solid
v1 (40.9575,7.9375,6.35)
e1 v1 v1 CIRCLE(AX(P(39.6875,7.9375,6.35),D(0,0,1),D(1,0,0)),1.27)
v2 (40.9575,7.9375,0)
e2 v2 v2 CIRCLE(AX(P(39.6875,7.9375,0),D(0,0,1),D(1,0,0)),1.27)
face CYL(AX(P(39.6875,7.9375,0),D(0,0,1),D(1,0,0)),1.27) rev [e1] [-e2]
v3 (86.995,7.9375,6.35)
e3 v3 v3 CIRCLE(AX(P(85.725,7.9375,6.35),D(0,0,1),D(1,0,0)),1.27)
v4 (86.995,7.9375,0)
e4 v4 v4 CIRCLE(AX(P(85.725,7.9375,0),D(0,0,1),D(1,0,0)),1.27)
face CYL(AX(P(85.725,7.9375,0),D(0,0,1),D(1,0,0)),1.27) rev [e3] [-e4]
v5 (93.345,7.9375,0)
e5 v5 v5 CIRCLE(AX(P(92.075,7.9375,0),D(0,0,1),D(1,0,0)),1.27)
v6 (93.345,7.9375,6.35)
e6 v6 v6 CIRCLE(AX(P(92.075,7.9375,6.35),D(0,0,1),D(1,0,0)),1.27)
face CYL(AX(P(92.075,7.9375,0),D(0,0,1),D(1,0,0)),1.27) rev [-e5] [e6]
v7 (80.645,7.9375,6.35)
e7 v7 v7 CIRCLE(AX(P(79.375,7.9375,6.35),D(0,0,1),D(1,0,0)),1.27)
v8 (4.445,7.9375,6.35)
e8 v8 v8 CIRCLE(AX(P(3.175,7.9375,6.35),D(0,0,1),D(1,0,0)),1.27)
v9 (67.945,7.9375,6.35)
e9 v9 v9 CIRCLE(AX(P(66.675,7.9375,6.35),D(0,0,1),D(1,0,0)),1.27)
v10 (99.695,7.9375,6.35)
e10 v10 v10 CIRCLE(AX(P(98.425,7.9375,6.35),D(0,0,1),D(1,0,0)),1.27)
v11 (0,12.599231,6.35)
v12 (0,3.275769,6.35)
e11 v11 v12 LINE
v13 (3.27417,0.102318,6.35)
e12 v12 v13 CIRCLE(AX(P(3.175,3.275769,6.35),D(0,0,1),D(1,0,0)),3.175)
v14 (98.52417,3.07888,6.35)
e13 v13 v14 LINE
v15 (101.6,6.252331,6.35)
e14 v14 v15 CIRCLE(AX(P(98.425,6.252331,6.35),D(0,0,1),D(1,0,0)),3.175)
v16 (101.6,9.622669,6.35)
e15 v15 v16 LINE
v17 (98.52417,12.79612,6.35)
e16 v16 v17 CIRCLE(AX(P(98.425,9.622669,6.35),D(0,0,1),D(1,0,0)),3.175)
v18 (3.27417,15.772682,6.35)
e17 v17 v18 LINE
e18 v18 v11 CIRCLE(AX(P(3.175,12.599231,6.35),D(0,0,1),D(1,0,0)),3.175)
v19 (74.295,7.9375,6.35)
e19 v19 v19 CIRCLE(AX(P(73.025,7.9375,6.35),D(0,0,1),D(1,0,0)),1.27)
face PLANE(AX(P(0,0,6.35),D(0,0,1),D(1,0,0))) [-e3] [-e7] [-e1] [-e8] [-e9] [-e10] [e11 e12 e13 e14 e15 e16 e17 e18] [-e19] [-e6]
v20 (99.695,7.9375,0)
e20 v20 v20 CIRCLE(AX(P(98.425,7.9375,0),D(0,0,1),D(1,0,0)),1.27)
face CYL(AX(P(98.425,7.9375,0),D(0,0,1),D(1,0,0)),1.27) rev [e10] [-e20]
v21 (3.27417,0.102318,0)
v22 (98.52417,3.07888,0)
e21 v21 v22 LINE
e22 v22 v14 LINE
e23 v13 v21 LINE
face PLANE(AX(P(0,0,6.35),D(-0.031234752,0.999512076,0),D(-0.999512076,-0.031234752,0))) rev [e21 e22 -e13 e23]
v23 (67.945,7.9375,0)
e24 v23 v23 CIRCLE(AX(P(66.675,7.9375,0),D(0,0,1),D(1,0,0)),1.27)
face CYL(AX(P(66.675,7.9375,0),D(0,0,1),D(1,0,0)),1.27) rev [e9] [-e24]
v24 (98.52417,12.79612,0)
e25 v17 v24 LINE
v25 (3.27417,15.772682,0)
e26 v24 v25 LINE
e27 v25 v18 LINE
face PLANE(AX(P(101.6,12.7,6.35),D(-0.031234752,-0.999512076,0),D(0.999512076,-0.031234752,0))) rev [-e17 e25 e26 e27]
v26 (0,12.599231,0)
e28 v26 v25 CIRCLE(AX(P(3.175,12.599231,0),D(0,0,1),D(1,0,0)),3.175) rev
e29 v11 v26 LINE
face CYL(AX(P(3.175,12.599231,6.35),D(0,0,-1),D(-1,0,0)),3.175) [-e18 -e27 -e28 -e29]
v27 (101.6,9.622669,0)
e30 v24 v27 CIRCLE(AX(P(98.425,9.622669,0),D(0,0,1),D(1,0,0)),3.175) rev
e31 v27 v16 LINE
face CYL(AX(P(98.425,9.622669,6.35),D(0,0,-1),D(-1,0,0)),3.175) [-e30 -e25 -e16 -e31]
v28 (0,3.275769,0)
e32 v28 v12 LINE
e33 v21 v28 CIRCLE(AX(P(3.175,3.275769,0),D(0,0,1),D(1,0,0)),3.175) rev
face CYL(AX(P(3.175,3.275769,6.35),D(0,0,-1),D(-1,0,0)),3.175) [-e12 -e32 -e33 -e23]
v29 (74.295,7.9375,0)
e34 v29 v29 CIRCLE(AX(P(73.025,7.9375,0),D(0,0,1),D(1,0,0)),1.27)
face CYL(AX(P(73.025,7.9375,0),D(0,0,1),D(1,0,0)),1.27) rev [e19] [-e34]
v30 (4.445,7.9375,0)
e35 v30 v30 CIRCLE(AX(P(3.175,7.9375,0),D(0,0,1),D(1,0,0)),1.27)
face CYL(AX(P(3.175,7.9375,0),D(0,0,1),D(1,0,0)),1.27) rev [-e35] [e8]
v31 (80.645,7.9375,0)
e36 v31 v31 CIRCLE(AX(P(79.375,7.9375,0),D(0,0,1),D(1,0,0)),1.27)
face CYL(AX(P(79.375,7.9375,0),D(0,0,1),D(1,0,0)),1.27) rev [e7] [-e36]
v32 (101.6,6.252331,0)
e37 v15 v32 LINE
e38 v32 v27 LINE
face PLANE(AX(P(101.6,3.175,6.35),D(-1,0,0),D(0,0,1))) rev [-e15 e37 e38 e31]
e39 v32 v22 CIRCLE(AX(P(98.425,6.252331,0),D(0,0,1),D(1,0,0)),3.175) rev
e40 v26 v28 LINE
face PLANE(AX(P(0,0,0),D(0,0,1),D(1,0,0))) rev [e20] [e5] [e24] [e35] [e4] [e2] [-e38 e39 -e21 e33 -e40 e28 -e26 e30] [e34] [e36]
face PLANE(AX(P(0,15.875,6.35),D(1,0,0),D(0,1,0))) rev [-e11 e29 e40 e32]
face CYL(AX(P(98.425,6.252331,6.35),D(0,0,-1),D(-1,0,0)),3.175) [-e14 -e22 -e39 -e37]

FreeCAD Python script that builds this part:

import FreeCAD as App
import Part
import Sketcher
from FreeCAD import Vector
Q = App.Units.Quantity


def edges_at(feature, points):
    """Names of the edges that pass closest to the given points."""
    edges = feature.Shape.Edges
    near = lambda p: min(range(len(edges)), key=lambda i: edges[i].distToShape(Part.Vertex(*p))[0])
    return sorted({f"Edge{near(p) + 1}" for p in points})


def add_polygon(sketch, points):
    """Adds a closed chain of lines whose ends are joined by coincident constraints."""
    first, n = sketch.GeometryCount, len(points)
    for a, b in zip(points, points[1:] + points[:1]):
        sketch.addGeometry(Part.LineSegment(App.Vector(*a, 0), App.Vector(*b, 0)), False)
    for i in range(n):
        sketch.addConstraint(Sketcher.Constraint("Coincident", first + i, 2, first + (i + 1) % n, 1))

doc = App.newDocument("Part")
params = doc.addObject("Spreadsheet::Sheet", "Params")
for row, (alias, value) in enumerate([
    ("sketch1_height", "0.375 in"),
    ("pad1_length", "0.25 in"),
    ("sketch2_diameter", "0.1 in"),
    ("linearpattern_pitch", "0.25 in"),
    ("sketch3_diameter", "0.1 in"),
    ("fillet_radius", "0.125 in"),
], start=1):
    params.set(f"A{row}", alias)
    params.set(f"B{row}", "=" + value)
    params.setAlias(f"B{row}", alias)

body = doc.addObject("PartDesign::Body", "Body")

# Sketch on XY plane
sketch1 = doc.addObject("Sketcher::SketchObject", "Sketch")
body.addObject(sketch1)
sketch1.AttachmentSupport = (doc.XY_Plane, [""])
sketch1.MapMode = "FlatFace"
add_polygon(sketch1, [(0, 0), (101.6, 3.175), (101.6, 12.7), (0, 15.875)])  # lines 0-3
sketch1.addConstraint([
    Sketcher.Constraint("Vertical", 1),
    Sketcher.Constraint("Vertical", 3),
    Sketcher.Constraint("Coincident", 3, 2, -1, 1),
    Sketcher.Constraint("Equal", 0, 2),
    Sketcher.Constraint("DistanceX", -1, 1, 0, 2, Q("4 in")),
    Sketcher.Constraint("DistanceY", -1, 1, 1, 2, Q("0.5 in")),
    Sketcher.Constraint("DistanceY", 1, 1, 1, 2, Q("0.375 in")),
])
sketch1.setExpression("Constraints[10]", "Params.sketch1_height")
pad1 = doc.addObject("PartDesign::Pad", "Pad")
body.addObject(pad1)
pad1.Profile = sketch1
pad1.setExpression("Length", "Params.pad1_length")

# Sketch on XY plane
sketch2 = doc.addObject("Sketcher::SketchObject", "Sketch001")
body.addObject(sketch2)
sketch2.AttachmentSupport = (doc.XY_Plane, [""])
sketch2.MapMode = "FlatFace"
sketch2.AttachmentOffset = App.Placement(Vector(0, 0, 0.25 * 25.4), App.Rotation())
sketch2.addGeometry(Part.Circle(Vector(98.425, 7.9375, 0), Vector(0, 0, 1), 1.27), False)
sketch2.addConstraint([
    Sketcher.Constraint("Diameter", 0, Q("0.1 in")),
    Sketcher.Constraint("DistanceX", -1, 1, 0, 3, Q("3.875 in")),
    Sketcher.Constraint("DistanceY", -1, 1, 0, 3, Q("0.3125 in")),
])
sketch2.setExpression("Constraints[0]", "Params.sketch2_diameter")
pocket1 = doc.addObject("PartDesign::Pocket", "Pocket")
body.addObject(pocket1)
pocket1.Profile = sketch2
pocket1.Type = "ThroughAll"
doc.recompute()

linearpattern = doc.addObject("PartDesign::LinearPattern", "LinearPattern")
body.addObject(linearpattern)
linearpattern.Originals = [pocket1]
linearpattern.Direction = (doc.X_Axis, [""])
linearpattern.Mode = "offset"
linearpattern.setExpression("Offset", "Params.linearpattern_pitch")
linearpattern.Occurrences = 6
linearpattern.Reversed = True
body.Tip = linearpattern

# Sketch on XY plane
sketch3 = doc.addObject("Sketcher::SketchObject", "Sketch002")
body.addObject(sketch3)
sketch3.AttachmentSupport = (doc.XY_Plane, [""])
sketch3.MapMode = "FlatFace"
sketch3.AttachmentOffset = App.Placement(Vector(0, 0, 0.25 * 25.4), App.Rotation())
sketch3.addGeometry([
    Part.Circle(Vector(3.175, 7.9375, 0), Vector(0, 0, 1), 1.27),
    Part.Circle(Vector(39.6875, 7.9375, 0), Vector(0, 0, 1), 1.27),
], False)
sketch3.addConstraint([
    Sketcher.Constraint("Equal", 0, 1),
    Sketcher.Constraint("Horizontal", 0, 3, 1, 3),
    Sketcher.Constraint("Diameter", 0, Q("0.1 in")),
    Sketcher.Constraint("DistanceX", -1, 1, 0, 3, Q("0.125 in")),
    Sketcher.Constraint("DistanceY", -1, 1, 0, 3, Q("0.3125 in")),
    Sketcher.Constraint("DistanceX", -1, 1, 1, 3, Q("1.5625 in")),
])
sketch3.setExpression("Constraints[2]", "Params.sketch3_diameter")
pocket2 = doc.addObject("PartDesign::Pocket", "Pocket001")
body.addObject(pocket2)
pocket2.Profile = sketch3
pocket2.Type = "ThroughAll"
doc.recompute()

fillet = doc.addObject("PartDesign::Fillet", "Fillet")
body.addObject(fillet)
fillet.Base = (pocket2, edges_at(pocket2, [
    (0, 15.875, 3.175),
    (101.6, 12.7, 3.175),
    (101.6, 3.175, 3.175),
    (0, 0, 3.175),
]))
fillet.setExpression("Radius", "Params.fillet_radius")

doc.recompute()
